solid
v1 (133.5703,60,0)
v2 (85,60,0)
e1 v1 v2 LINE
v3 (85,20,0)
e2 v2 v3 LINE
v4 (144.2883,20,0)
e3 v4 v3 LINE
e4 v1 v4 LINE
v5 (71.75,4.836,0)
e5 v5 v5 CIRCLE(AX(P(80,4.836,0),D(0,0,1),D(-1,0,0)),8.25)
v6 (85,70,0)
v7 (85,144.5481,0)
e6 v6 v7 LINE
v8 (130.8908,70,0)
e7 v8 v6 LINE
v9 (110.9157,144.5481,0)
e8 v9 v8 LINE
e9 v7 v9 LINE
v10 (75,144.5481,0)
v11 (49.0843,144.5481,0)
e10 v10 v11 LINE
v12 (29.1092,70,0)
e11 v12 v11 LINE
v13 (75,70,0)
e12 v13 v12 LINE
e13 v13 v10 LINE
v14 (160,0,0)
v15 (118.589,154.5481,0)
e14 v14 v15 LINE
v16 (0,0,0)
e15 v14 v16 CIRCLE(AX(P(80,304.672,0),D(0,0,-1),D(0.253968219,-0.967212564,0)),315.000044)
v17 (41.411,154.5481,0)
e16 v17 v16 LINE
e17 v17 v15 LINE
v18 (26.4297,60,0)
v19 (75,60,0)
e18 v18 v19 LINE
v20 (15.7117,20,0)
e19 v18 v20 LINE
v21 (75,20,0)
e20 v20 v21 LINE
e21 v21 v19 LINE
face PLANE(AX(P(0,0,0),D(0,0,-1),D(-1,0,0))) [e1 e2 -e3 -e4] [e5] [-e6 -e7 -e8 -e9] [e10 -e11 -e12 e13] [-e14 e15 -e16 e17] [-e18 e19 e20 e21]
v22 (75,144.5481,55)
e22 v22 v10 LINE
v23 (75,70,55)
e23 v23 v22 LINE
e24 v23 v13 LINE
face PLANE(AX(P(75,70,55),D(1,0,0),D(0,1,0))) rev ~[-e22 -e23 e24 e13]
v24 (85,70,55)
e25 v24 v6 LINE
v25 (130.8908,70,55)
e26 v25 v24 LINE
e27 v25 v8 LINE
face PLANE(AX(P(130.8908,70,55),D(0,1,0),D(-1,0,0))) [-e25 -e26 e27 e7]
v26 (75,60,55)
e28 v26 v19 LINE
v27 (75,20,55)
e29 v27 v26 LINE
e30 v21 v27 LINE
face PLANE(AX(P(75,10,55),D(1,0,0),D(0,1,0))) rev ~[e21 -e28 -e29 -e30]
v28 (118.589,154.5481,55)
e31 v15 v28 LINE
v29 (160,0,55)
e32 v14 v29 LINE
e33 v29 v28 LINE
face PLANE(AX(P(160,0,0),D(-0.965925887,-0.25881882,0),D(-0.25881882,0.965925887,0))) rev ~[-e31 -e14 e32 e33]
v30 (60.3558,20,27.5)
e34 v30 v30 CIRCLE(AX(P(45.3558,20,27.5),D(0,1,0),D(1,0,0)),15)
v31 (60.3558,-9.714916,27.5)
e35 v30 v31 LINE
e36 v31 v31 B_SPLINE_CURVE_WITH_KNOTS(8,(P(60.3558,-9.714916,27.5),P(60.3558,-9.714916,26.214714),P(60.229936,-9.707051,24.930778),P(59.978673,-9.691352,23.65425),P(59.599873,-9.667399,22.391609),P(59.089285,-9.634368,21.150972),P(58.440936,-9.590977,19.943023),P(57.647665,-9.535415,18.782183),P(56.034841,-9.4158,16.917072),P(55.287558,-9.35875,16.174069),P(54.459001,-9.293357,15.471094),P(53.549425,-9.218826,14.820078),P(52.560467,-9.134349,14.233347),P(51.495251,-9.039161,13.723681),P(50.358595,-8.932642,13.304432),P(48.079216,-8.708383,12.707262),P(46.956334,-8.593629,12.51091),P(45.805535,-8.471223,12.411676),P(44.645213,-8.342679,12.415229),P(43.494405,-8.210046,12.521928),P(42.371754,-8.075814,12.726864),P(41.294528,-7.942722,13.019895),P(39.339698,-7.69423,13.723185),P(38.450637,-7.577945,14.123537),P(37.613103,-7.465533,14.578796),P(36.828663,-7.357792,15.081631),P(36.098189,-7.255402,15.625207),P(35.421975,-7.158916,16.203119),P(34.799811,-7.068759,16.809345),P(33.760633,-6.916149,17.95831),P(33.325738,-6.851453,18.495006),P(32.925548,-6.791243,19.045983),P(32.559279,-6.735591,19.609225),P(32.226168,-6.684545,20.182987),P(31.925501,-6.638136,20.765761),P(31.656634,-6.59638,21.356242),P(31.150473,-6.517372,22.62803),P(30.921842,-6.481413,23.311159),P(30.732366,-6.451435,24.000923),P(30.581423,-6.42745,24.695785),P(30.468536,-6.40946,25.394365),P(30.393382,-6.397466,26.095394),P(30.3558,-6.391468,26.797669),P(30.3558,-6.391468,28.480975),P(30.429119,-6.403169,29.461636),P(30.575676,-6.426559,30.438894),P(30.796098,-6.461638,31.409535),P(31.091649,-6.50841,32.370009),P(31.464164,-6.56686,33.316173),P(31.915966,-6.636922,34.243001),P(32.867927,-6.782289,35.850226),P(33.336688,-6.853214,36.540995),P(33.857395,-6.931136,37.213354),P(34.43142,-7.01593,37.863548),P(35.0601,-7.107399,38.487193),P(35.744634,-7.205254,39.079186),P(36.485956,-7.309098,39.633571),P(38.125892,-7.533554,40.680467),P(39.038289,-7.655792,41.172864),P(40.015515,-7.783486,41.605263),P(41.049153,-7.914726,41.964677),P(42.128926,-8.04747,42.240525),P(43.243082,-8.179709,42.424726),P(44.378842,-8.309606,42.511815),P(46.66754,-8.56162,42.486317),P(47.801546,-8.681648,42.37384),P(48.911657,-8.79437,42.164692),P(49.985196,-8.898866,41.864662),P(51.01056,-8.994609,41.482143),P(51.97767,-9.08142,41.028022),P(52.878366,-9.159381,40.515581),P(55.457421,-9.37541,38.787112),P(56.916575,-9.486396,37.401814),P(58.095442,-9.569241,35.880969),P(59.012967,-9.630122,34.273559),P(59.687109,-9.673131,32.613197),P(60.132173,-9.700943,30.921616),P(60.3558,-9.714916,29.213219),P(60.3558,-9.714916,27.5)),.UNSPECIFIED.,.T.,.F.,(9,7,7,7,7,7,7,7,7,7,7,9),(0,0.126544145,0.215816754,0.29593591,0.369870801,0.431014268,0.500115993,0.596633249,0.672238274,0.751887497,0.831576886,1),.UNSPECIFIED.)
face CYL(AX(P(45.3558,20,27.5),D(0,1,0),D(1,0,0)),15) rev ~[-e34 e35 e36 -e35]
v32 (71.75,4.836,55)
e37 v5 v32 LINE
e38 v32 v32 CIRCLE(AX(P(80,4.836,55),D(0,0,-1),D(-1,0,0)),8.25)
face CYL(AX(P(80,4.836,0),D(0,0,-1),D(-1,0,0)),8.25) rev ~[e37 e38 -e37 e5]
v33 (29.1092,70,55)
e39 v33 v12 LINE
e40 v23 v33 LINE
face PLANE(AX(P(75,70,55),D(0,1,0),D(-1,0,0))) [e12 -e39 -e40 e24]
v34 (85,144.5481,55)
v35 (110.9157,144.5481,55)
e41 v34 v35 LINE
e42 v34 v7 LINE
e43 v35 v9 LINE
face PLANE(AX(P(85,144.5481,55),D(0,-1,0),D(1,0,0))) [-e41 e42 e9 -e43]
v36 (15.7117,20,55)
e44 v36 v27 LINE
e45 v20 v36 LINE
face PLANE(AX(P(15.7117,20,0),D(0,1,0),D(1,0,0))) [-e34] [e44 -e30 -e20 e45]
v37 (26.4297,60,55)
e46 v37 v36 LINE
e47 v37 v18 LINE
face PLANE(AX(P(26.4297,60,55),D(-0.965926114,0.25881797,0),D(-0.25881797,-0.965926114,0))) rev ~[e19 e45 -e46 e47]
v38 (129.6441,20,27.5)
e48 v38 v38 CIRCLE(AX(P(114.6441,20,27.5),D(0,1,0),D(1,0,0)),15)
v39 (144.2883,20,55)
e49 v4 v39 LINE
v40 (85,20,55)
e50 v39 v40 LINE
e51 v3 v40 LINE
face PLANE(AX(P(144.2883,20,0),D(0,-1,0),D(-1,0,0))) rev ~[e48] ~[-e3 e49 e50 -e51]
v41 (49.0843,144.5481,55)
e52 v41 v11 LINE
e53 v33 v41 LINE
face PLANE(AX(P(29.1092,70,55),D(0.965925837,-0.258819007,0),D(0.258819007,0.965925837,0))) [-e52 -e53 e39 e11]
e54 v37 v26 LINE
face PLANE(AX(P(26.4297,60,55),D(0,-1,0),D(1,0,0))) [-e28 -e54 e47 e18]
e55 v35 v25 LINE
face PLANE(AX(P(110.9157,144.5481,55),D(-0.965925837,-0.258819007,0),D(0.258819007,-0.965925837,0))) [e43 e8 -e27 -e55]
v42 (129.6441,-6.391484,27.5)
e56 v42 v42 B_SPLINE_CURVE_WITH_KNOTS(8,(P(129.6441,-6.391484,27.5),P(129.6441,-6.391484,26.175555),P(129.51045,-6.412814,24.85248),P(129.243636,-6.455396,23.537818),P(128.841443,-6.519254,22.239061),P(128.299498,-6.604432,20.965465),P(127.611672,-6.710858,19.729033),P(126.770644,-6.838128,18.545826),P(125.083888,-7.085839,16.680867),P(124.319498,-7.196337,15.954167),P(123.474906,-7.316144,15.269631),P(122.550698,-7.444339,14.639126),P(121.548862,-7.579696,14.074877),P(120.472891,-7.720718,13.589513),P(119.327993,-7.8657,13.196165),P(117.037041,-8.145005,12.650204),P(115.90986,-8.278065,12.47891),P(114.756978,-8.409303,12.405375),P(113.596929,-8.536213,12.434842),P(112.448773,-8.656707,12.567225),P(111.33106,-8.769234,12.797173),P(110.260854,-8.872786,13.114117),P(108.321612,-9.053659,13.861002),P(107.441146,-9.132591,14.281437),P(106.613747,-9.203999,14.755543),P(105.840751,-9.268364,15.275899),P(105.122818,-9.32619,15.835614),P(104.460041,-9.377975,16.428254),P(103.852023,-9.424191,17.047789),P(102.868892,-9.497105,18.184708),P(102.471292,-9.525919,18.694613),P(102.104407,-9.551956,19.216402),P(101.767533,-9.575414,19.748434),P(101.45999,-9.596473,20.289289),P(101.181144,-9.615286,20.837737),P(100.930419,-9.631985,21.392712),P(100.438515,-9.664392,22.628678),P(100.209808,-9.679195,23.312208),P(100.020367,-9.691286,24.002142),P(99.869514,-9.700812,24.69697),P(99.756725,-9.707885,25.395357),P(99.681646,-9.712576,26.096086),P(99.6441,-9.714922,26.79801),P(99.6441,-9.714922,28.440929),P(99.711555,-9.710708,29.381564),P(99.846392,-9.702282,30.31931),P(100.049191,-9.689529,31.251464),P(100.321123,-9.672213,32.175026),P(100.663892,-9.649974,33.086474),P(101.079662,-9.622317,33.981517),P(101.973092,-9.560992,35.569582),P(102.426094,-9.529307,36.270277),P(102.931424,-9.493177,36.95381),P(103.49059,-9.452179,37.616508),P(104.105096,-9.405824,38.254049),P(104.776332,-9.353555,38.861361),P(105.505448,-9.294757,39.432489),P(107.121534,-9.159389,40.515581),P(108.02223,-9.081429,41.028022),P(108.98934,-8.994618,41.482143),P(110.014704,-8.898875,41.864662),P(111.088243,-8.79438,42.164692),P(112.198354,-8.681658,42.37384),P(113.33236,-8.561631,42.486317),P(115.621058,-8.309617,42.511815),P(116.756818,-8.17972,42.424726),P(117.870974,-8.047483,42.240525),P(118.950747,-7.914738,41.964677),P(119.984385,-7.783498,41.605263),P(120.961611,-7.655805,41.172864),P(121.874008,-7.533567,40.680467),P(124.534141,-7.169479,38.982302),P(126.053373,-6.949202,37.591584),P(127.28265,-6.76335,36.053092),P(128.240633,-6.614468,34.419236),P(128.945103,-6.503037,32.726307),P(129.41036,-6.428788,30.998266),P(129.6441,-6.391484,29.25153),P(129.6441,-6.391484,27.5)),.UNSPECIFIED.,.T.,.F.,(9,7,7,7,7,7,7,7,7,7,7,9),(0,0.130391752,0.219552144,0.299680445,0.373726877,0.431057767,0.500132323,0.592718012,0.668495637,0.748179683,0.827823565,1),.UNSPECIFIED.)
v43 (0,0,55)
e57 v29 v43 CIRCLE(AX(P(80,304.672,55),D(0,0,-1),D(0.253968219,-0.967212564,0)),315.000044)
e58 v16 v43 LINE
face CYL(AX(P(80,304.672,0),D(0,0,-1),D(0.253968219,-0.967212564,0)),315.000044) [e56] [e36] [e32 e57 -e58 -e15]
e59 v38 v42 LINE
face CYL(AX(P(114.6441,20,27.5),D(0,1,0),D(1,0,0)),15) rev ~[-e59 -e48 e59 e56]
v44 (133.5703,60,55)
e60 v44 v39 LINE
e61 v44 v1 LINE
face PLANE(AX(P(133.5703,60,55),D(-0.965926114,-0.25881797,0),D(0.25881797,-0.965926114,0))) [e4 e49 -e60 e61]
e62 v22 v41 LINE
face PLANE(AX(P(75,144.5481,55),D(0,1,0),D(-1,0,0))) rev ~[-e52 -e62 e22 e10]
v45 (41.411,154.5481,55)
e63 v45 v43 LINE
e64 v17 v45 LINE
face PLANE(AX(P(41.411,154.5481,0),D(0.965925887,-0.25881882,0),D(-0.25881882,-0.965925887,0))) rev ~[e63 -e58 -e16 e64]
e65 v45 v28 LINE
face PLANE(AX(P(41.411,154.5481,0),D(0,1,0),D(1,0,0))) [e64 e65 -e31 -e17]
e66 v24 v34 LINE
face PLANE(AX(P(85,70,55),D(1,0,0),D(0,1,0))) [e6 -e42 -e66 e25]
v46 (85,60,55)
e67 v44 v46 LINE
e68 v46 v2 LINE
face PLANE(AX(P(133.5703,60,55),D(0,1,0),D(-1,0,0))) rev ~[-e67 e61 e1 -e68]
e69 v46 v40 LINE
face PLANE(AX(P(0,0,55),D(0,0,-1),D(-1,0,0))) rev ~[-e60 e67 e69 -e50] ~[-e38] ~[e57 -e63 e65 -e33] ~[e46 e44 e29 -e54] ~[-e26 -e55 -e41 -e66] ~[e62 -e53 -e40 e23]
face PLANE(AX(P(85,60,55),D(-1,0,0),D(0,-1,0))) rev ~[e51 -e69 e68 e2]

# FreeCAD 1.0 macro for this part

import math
import FreeCAD as App
import Part
import Sketcher

V = App.Vector
Q = App.Units.Quantity


def add_polygon(sketch, points):
    """Adds a closed chain of lines whose ends are joined by coincident constraints."""
    first, n = sketch.GeometryCount, len(points)
    for a, b in zip(points, points[1:] + points[:1]):
        sketch.addGeometry(Part.LineSegment(App.Vector(*a, 0), App.Vector(*b, 0)), False)
    for i in range(n):
        sketch.addConstraint(Sketcher.Constraint("Coincident", first + i, 2, first + (i + 1) % n, 1))

doc = App.newDocument("Part")
params = doc.addObject("Spreadsheet::Sheet", "Params")
for row, (alias, value) in enumerate([
    ("sketch1_width", "160 mm"),
    ("sketch1_length", "160 mm"),
    ("pad1_length", "55 mm"),
    ("sketch2_height", "50 mm"),
    ("sketch3_radius", "315 mm"),
    ("sketch3_width", "160 mm"),
    ("pad2_length", "55 mm"),
    ("sketch4_height", "10 mm"),
    ("pad3_length", "55 mm"),
    ("sketch5_diameter", "16.5 mm"),
    ("sketch6_diameter", "30 mm"),
], start=1):
    params.set(f"A{row}", alias)
    params.set(f"B{row}", "=" + value)
    params.setAlias(f"B{row}", alias)

body = doc.addObject("PartDesign::Body", "Body")

sketch1 = body.newObject("Sketcher::SketchObject", "Sketch")
sketch1.AttachmentSupport = (doc.getObject("XY_Plane"), [""])
sketch1.MapMode = "FlatFace"
add_polygon(sketch1, [(41.411, 154.5481), (0, 0), (160, 0), (118.589, 154.5481)])
sketch1.addConstraint([
    Sketcher.Constraint("Horizontal", 1),
    Sketcher.Constraint("Horizontal", 3),
    Sketcher.Constraint("Coincident", 0, 2, -1, 1),
    Sketcher.Constraint("Equal", 0, 2),
    Sketcher.Constraint("DistanceX", 1, 1, 1, 2, 160.0),
    Sketcher.Constraint("Distance", 0, 160.0),
    Sketcher.Constraint("Angle", 0, Q("-105 deg")),
])
sketch1.setExpression("Constraints[8]", "Params.sketch1_width")
sketch1.setExpression("Constraints[9]", "Params.sketch1_length")
pad1 = body.newObject("PartDesign::Pad", "Pad")
pad1.Profile = sketch1
pad1.setExpression("Length", "Params.pad1_length")

sketch2 = body.newObject("Sketcher::SketchObject", "Sketch001")
sketch2.AttachmentSupport = (doc.getObject("XY_Plane"), [""])
sketch2.MapMode = "FlatFace"
sketch2.AttachmentOffset = App.Placement(V(0, 0, 55), App.Rotation())
add_polygon(sketch2, [(146.9677, 10), (133.5703, 60), (85, 60), (85, 10)])
add_polygon(sketch2, [(13.0323, 10), (75, 10), (75, 60), (26.4297, 60)])
add_polygon(sketch2, [(29.1092, 70), (75, 70), (75, 144.5481), (49.0843, 144.5481)])
add_polygon(sketch2, [(110.9157, 144.5481), (85, 144.5481), (85, 70), (130.8908, 70)])
sketch2.addConstraint([
    Sketcher.Constraint("Horizontal", 1),
    Sketcher.Constraint("Vertical", 2),
    Sketcher.Constraint("Horizontal", 3),
    Sketcher.Constraint("Horizontal", 4),
    Sketcher.Constraint("Vertical", 5),
    Sketcher.Constraint("Horizontal", 6),
    Sketcher.Constraint("Horizontal", 8),
    Sketcher.Constraint("Vertical", 9),
    Sketcher.Constraint("Horizontal", 10),
    Sketcher.Constraint("Horizontal", 12),
    Sketcher.Constraint("Vertical", 13),
    Sketcher.Constraint("Horizontal", 14),
    Sketcher.Constraint("Parallel", 7, 11),
    Sketcher.Constraint("Parallel", 0, 15),
    Sketcher.Constraint("Horizontal", 3, 2, 4, 2),
    Sketcher.Constraint("Horizontal", 1, 2, 5, 2),
    Sketcher.Constraint("Horizontal", 10, 2, 12, 2),
    Sketcher.Constraint("Horizontal", 11, 2, 13, 2),
    Sketcher.Constraint("Vertical", 5, 2, 8, 2),
    Sketcher.Constraint("Vertical", 2, 2, 12, 2),
    Sketcher.Constraint("Equal", 3, 4),
    Sketcher.Constraint("Equal", 1, 6),
    Sketcher.Constraint("Equal", 10, 12),
    Sketcher.Constraint("DistanceY", 2, 2, 2, 1, 50.0),
    Sketcher.Constraint("DistanceY", -1, 1, 2, 2, 10.0),
    Sketcher.Constraint("DistanceX", 4, 2, 2, 2, 10.0),
    Sketcher.Constraint("DistanceY", 5, 2, 8, 2, 10.0),
    Sketcher.Constraint("Angle", 0, Q("105 deg")),
    Sketcher.Constraint("DistanceX", -1, 1, 1, 2, 85.0),
    Sketcher.Constraint("DistanceY", 9, 1, 9, 2, 74.548),
    Sketcher.Constraint("DistanceX", 1, 2, 1, 1, 48.5703),
    Sketcher.Constraint("DistanceX", 8, 1, 8, 2, 45.8908),
])
sketch2.setExpression("Constraints[39]", "Params.sketch2_height")
pocket1 = body.newObject("PartDesign::Pocket", "Pocket")
pocket1.Profile = sketch2
pocket1.Type = "ThroughAll"

sketch3 = body.newObject("Sketcher::SketchObject", "Sketch002")
sketch3.AttachmentSupport = (doc.getObject("XY_Plane"), [""])
sketch3.MapMode = "FlatFace"
sketch3.addGeometry([
    Part.ArcOfCircle(Part.Circle(V(80, 304.672, 0), V(0, 0, 1), 315.000044), math.radians(-104.712456), math.radians(-75.287544)),
    Part.LineSegment(V(0, 0, 0), V(160, 0, 0)),
], False)
sketch3.addConstraint([
    Sketcher.Constraint("Coincident", 0, 1, 1, 1),
    Sketcher.Constraint("Coincident", 1, 2, 0, 2),
    Sketcher.Constraint("Horizontal", 1),
    Sketcher.Constraint("Coincident", 0, 1, -1, 1),
    Sketcher.Constraint("Radius", 0, 315.0),
    Sketcher.Constraint("DistanceX", 1, 1, 1, 2, 160.0),
])
sketch3.setExpression("Constraints[4]", "Params.sketch3_radius")
sketch3.setExpression("Constraints[5]", "Params.sketch3_width")
pad2 = body.newObject("PartDesign::Pad", "Pad001")
pad2.Profile = sketch3
pad2.setExpression("Length", "Params.pad2_length")

sketch4 = body.newObject("Sketcher::SketchObject", "Sketch003")
sketch4.AttachmentSupport = (doc.getObject("XY_Plane"), [""])
sketch4.MapMode = "FlatFace"
add_polygon(sketch4, [(75, 10), (13.0323, 10), (15.7117, 20), (75, 20)])
add_polygon(sketch4, [(146.9677, 10), (85, 10), (85, 20), (144.2883, 20)])
sketch4.addConstraint([
    Sketcher.Constraint("Horizontal", 0),
    Sketcher.Constraint("Horizontal", 2),
    Sketcher.Constraint("Vertical", 3),
    Sketcher.Constraint("Horizontal", 4),
    Sketcher.Constraint("Vertical", 5),
    Sketcher.Constraint("Horizontal", 6),
    Sketcher.Constraint("Horizontal", 3, 2, 4, 2),
    Sketcher.Constraint("Horizontal", 2, 2, 5, 2),
    Sketcher.Constraint("Equal", 0, 4),
    Sketcher.Constraint("Equal", 2, 6),
    Sketcher.Constraint("DistanceY", -1, 1, 1, 2, 20.0),
    Sketcher.Constraint("DistanceY", 3, 2, 3, 1, 10.0),
    Sketcher.Constraint("Angle", 1, Q("75.0005 deg")),
    Sketcher.Constraint("DistanceX", -1, 1, 2, 2, 75.0),
    Sketcher.Constraint("DistanceX", -1, 1, 4, 2, 85.0),
    Sketcher.Constraint("DistanceX", 0, 2, 0, 1, 61.9677),
])
sketch4.setExpression("Constraints[19]", "Params.sketch4_height")
pad3 = body.newObject("PartDesign::Pad", "Pad002")
pad3.Profile = sketch4
pad3.setExpression("Length", "Params.pad3_length")

sketch5 = body.newObject("Sketcher::SketchObject", "Sketch004")
sketch5.AttachmentSupport = (doc.getObject("XY_Plane"), [""])
sketch5.MapMode = "FlatFace"
sketch5.addGeometry(Part.Circle(V(80, 4.836, 0), V(0, 0, 1), 8.25), False)
sketch5.addConstraint([
    Sketcher.Constraint("Diameter", 0, 16.5),
    Sketcher.Constraint("DistanceX", -1, 1, 0, 3, 80.0),
    Sketcher.Constraint("DistanceY", -1, 1, 0, 3, 4.836),
])
sketch5.setExpression("Constraints[0]", "Params.sketch5_diameter")
pocket2 = body.newObject("PartDesign::Pocket", "Pocket001")
pocket2.Profile = sketch5
pocket2.Type = "ThroughAll"
pocket2.Reversed = True

sketch6 = body.newObject("Sketcher::SketchObject", "Sketch005")
sketch6.AttachmentSupport = (doc.getObject("XZ_Plane"), [""])
sketch6.MapMode = "FlatFace"
sketch6.AttachmentOffset = App.Placement(V(0, 0, -20), App.Rotation())
sketch6.addGeometry([
    Part.Circle(V(45.3558, 27.5, 0), V(0, 0, 1), 15),
    Part.Circle(V(114.6441, 27.5, 0), V(0, 0, 1), 15),
], False)
sketch6.addConstraint([
    Sketcher.Constraint("Equal", 0, 1),
    Sketcher.Constraint("Horizontal", 0, 3, 1, 3),
    Sketcher.Constraint("Diameter", 0, 30.0),
    Sketcher.Constraint("DistanceY", -1, 1, 0, 3, 27.5),
    Sketcher.Constraint("DistanceX", -1, 1, 1, 3, 114.644),
    Sketcher.Constraint("DistanceX", -1, 1, 0, 3, 45.3558),
])
sketch6.setExpression("Constraints[2]", "Params.sketch6_diameter")
pocket3 = body.newObject("PartDesign::Pocket", "Pocket002")
pocket3.Profile = sketch6
pocket3.Type = "ThroughAll"
pocket3.Reversed = True

doc.recompute()
